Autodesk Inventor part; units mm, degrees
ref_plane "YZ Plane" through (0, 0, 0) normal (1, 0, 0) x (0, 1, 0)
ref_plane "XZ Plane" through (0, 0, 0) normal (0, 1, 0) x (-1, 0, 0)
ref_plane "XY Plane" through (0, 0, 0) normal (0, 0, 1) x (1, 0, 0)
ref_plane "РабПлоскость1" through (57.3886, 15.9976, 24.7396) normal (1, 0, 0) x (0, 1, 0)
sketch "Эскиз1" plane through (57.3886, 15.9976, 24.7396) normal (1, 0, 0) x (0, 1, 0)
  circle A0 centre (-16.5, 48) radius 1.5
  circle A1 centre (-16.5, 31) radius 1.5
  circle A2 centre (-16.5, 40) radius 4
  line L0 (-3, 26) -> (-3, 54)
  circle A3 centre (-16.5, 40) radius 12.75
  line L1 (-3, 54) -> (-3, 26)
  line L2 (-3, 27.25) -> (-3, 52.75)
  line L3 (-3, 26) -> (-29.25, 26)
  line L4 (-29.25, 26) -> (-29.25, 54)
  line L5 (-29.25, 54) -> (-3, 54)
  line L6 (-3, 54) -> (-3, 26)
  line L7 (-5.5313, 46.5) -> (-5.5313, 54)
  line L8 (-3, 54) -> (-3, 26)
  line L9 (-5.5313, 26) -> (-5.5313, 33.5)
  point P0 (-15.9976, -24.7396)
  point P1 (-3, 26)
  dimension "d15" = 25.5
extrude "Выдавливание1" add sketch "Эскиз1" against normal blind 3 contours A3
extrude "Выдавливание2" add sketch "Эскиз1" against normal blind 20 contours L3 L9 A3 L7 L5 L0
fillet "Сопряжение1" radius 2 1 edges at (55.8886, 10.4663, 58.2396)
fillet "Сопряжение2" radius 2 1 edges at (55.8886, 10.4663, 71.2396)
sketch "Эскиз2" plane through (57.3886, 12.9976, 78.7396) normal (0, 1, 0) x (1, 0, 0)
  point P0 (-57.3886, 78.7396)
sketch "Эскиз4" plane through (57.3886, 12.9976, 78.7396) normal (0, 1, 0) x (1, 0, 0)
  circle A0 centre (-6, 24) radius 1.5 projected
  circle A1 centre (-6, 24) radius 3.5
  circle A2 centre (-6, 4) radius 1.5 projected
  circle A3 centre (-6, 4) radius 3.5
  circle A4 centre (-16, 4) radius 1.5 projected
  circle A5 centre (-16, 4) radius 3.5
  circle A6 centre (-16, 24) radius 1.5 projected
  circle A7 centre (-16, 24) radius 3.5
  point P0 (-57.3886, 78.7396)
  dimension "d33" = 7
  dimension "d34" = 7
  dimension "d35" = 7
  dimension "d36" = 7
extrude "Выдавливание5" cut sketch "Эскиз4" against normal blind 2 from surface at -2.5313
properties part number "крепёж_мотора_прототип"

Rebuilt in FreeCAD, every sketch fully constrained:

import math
import FreeCAD as App
import Part
import Sketcher
Q = App.Units.Quantity


def edges_at(feature, points):
    """Names of the edges that pass closest to the given points."""
    edges = feature.Shape.Edges
    near = lambda p: min(range(len(edges)), key=lambda i: edges[i].distToShape(Part.Vertex(*p))[0])
    return sorted({f"Edge{near(p) + 1}" for p in points})

doc = App.newDocument("Part")
body = doc.addObject("PartDesign::Body", "Body")

sketch1 = body.newObject("Sketcher::SketchObject", "Sketch")
sketch1.AttachmentSupport = (doc.getObject("YZ_Plane"), [""])
sketch1.MapMode = "FlatFace"
sketch1.AttachmentOffset = App.Placement(App.Vector(0, 0, 57.3886), App.Rotation())
sketch1.addGeometry(Part.Circle(App.Vector(-0.5024, 64.7396, 0), App.Vector(0, 0, 1), 12.75), False)
sketch1.addGeometry(Part.Circle(App.Vector(-0.5024, 55.7396, 0), App.Vector(0, 0, 1), 1.5), False)
sketch1.addGeometry(Part.Circle(App.Vector(-0.5024, 64.7396, 0), App.Vector(0, 0, 1), 4), False)
sketch1.addGeometry(Part.Circle(App.Vector(-0.5024, 72.7396, 0), App.Vector(0, 0, 1), 1.5), False)
sketch1.addConstraint(Sketcher.Constraint("Coincident", 2, 3, 0, 3))
sketch1.addConstraint(Sketcher.Constraint("Equal", 1, 3))
sketch1.addConstraint(Sketcher.Constraint("Vertical", 0, 3, 1, 3))
sketch1.addConstraint(Sketcher.Constraint("Vertical", 2, 3, 3, 3))
sketch1.addConstraint(Sketcher.Constraint("Diameter", 0, Q("25.5 mm")))
sketch1.addConstraint(Sketcher.Constraint("Diameter", 1, Q("3 mm")))
sketch1.addConstraint(Sketcher.Constraint("Diameter", 2, Q("8 mm")))
sketch1.addConstraint(Sketcher.Constraint("DistanceY", 1, 3, 0, 3, Q("9 mm")))
sketch1.addConstraint(Sketcher.Constraint("DistanceY", 0, 3, 3, 3, Q("8 mm")))
sketch1.addConstraint(Sketcher.Constraint("DistanceX", 0, 3, -1, 1, Q("0.5024 mm")))
sketch1.addConstraint(Sketcher.Constraint("DistanceY", -1, 1, 0, 3, Q("64.7396 mm")))
pad1 = body.newObject("PartDesign::Pad", "Pad")
pad1.Profile = sketch1
pad1.Length = 3
pad1.Reversed = True

sketch2 = body.newObject("Sketcher::SketchObject", "Sketch001")
sketch2.AttachmentSupport = (doc.getObject("YZ_Plane"), [""])
sketch2.MapMode = "FlatFace"
sketch2.AttachmentOffset = App.Placement(App.Vector(0, 0, 57.3886), App.Rotation())
sketch2.addGeometry(Part.LineSegment(App.Vector(10.4663, 50.7396, 0), App.Vector(12.9976, 50.7396, 0)), False)
sketch2.addGeometry(Part.LineSegment(App.Vector(12.9976, 50.7396, 0), App.Vector(12.9976, 78.7396, 0)), False)
sketch2.addGeometry(Part.LineSegment(App.Vector(12.9976, 78.7396, 0), App.Vector(10.4663, 78.7396, 0)), False)
sketch2.addGeometry(Part.LineSegment(App.Vector(10.4663, 78.7396, 0), App.Vector(10.4663, 71.2396, 0)), False)
sketch2.addGeometry(Part.ArcOfCircle(Part.Circle(App.Vector(-0.5024, 64.7396, 0), App.Vector(0, 0, 1), 12.75), math.radians(-30.650783), math.radians(30.650783)), False)
sketch2.addGeometry(Part.LineSegment(App.Vector(10.4663, 58.2396, 0), App.Vector(10.4663, 50.7396, 0)), False)
sketch2.addConstraint(Sketcher.Constraint("Coincident", 0, 2, 1, 1))
sketch2.addConstraint(Sketcher.Constraint("Coincident", 1, 2, 2, 1))
sketch2.addConstraint(Sketcher.Constraint("Coincident", 2, 2, 3, 1))
sketch2.addConstraint(Sketcher.Constraint("Coincident", 3, 2, 4, 2))
sketch2.addConstraint(Sketcher.Constraint("Coincident", 4, 1, 5, 1))
sketch2.addConstraint(Sketcher.Constraint("Coincident", 5, 2, 0, 1))
sketch2.addConstraint(Sketcher.Constraint("Horizontal", 0))
sketch2.addConstraint(Sketcher.Constraint("Vertical", 1))
sketch2.addConstraint(Sketcher.Constraint("Horizontal", 2))
sketch2.addConstraint(Sketcher.Constraint("Vertical", 3))
sketch2.addConstraint(Sketcher.Constraint("Vertical", 5))
sketch2.addConstraint(Sketcher.Constraint("Vertical", 3, 2, 4, 1))
sketch2.addConstraint(Sketcher.Constraint("Equal", 3, 5))
sketch2.addConstraint(Sketcher.Constraint("Radius", 4, Q("12.75 mm")))
sketch2.addConstraint(Sketcher.Constraint("DistanceY", 1, 1, 1, 2, Q("28 mm")))
sketch2.addConstraint(Sketcher.Constraint("DistanceY", 3, 2, 3, 1, Q("7.5 mm")))
sketch2.addConstraint(Sketcher.Constraint("DistanceX", 4, 3, 0, 2, Q("13.5 mm")))
sketch2.addConstraint(Sketcher.Constraint("DistanceX", 4, 3, -1, 1, Q("0.5024 mm")))
sketch2.addConstraint(Sketcher.Constraint("DistanceY", -1, 1, 4, 3, Q("64.7396 mm")))
pad2 = body.newObject("PartDesign::Pad", "Pad001")
pad2.Profile = sketch2
pad2.Length = 20
pad2.Reversed = True
doc.recompute()

fillet = body.newObject("PartDesign::Fillet", "Fillet")
fillet.Base = (pad2, edges_at(pad2, [(55.889, 10.466, 58.24)]))
fillet.Radius = 2
doc.recompute()

fillet2 = body.newObject("PartDesign::Fillet", "Fillet001")
fillet2.Base = (fillet, edges_at(fillet, [(55.889, 10.466, 71.24)]))
fillet2.Radius = 2

sketch3 = body.newObject("Sketcher::SketchObject", "Sketch002")
sketch3.AttachmentSupport = (doc.getObject("XZ_Plane"), [""])
sketch3.MapMode = "FlatFace"
sketch3.AttachmentOffset = App.Placement(App.Vector(0, 0, -10.4663), App.Rotation())
sketch3.addGeometry(Part.Circle(App.Vector(51.3886, 54.7396, 0), App.Vector(0, 0, 1), 3.5), False)
sketch3.addGeometry(Part.Circle(App.Vector(51.3886, 54.7396, 0), App.Vector(0, 0, 1), 1.5), False)
sketch3.addGeometry(Part.Circle(App.Vector(51.3886, 74.7396, 0), App.Vector(0, 0, 1), 3.5), False)
sketch3.addGeometry(Part.Circle(App.Vector(51.3886, 74.7396, 0), App.Vector(0, 0, 1), 1.5), False)
sketch3.addGeometry(Part.Circle(App.Vector(41.3886, 74.7396, 0), App.Vector(0, 0, 1), 3.5), False)
sketch3.addGeometry(Part.Circle(App.Vector(41.3886, 74.7396, 0), App.Vector(0, 0, 1), 1.5), False)
sketch3.addGeometry(Part.Circle(App.Vector(41.3886, 54.7396, 0), App.Vector(0, 0, 1), 3.5), False)
sketch3.addGeometry(Part.Circle(App.Vector(41.3886, 54.7396, 0), App.Vector(0, 0, 1), 1.5), False)
sketch3.addConstraint(Sketcher.Constraint("Coincident", 1, 3, 0, 3))
sketch3.addConstraint(Sketcher.Constraint("Coincident", 3, 3, 2, 3))
sketch3.addConstraint(Sketcher.Constraint("Coincident", 5, 3, 4, 3))
sketch3.addConstraint(Sketcher.Constraint("Coincident", 7, 3, 6, 3))
sketch3.addConstraint(Sketcher.Constraint("Equal", 0, 2))
sketch3.addConstraint(Sketcher.Constraint("Equal", 1, 3))
sketch3.addConstraint(Sketcher.Constraint("Equal", 2, 4))
sketch3.addConstraint(Sketcher.Constraint("Equal", 3, 5))
sketch3.addConstraint(Sketcher.Constraint("Equal", 4, 6))
sketch3.addConstraint(Sketcher.Constraint("Equal", 5, 7))
sketch3.addConstraint(Sketcher.Constraint("Horizontal", 3, 3, 4, 3))
sketch3.addConstraint(Sketcher.Constraint("Horizontal", 1, 3, 6, 3))
sketch3.addConstraint(Sketcher.Constraint("Vertical", 1, 3, 2, 3))
sketch3.addConstraint(Sketcher.Constraint("Vertical", 5, 3, 6, 3))
sketch3.addConstraint(Sketcher.Constraint("Diameter", 0, Q("7 mm")))
sketch3.addConstraint(Sketcher.Constraint("Diameter", 1, Q("3 mm")))
sketch3.addConstraint(Sketcher.Constraint("DistanceY", 0, 3, 2, 3, Q("20 mm")))
sketch3.addConstraint(Sketcher.Constraint("DistanceX", 4, 3, 2, 3, Q("10 mm")))
sketch3.addConstraint(Sketcher.Constraint("DistanceX", -1, 1, 0, 3, Q("51.3886 mm")))
sketch3.addConstraint(Sketcher.Constraint("DistanceY", -1, 1, 0, 3, Q("54.7396 mm")))
pocket1 = body.newObject("PartDesign::Pocket", "Pocket")
pocket1.Profile = sketch3
pocket1.Length = 2
pocket1.Reversed = True

doc.recompute()
